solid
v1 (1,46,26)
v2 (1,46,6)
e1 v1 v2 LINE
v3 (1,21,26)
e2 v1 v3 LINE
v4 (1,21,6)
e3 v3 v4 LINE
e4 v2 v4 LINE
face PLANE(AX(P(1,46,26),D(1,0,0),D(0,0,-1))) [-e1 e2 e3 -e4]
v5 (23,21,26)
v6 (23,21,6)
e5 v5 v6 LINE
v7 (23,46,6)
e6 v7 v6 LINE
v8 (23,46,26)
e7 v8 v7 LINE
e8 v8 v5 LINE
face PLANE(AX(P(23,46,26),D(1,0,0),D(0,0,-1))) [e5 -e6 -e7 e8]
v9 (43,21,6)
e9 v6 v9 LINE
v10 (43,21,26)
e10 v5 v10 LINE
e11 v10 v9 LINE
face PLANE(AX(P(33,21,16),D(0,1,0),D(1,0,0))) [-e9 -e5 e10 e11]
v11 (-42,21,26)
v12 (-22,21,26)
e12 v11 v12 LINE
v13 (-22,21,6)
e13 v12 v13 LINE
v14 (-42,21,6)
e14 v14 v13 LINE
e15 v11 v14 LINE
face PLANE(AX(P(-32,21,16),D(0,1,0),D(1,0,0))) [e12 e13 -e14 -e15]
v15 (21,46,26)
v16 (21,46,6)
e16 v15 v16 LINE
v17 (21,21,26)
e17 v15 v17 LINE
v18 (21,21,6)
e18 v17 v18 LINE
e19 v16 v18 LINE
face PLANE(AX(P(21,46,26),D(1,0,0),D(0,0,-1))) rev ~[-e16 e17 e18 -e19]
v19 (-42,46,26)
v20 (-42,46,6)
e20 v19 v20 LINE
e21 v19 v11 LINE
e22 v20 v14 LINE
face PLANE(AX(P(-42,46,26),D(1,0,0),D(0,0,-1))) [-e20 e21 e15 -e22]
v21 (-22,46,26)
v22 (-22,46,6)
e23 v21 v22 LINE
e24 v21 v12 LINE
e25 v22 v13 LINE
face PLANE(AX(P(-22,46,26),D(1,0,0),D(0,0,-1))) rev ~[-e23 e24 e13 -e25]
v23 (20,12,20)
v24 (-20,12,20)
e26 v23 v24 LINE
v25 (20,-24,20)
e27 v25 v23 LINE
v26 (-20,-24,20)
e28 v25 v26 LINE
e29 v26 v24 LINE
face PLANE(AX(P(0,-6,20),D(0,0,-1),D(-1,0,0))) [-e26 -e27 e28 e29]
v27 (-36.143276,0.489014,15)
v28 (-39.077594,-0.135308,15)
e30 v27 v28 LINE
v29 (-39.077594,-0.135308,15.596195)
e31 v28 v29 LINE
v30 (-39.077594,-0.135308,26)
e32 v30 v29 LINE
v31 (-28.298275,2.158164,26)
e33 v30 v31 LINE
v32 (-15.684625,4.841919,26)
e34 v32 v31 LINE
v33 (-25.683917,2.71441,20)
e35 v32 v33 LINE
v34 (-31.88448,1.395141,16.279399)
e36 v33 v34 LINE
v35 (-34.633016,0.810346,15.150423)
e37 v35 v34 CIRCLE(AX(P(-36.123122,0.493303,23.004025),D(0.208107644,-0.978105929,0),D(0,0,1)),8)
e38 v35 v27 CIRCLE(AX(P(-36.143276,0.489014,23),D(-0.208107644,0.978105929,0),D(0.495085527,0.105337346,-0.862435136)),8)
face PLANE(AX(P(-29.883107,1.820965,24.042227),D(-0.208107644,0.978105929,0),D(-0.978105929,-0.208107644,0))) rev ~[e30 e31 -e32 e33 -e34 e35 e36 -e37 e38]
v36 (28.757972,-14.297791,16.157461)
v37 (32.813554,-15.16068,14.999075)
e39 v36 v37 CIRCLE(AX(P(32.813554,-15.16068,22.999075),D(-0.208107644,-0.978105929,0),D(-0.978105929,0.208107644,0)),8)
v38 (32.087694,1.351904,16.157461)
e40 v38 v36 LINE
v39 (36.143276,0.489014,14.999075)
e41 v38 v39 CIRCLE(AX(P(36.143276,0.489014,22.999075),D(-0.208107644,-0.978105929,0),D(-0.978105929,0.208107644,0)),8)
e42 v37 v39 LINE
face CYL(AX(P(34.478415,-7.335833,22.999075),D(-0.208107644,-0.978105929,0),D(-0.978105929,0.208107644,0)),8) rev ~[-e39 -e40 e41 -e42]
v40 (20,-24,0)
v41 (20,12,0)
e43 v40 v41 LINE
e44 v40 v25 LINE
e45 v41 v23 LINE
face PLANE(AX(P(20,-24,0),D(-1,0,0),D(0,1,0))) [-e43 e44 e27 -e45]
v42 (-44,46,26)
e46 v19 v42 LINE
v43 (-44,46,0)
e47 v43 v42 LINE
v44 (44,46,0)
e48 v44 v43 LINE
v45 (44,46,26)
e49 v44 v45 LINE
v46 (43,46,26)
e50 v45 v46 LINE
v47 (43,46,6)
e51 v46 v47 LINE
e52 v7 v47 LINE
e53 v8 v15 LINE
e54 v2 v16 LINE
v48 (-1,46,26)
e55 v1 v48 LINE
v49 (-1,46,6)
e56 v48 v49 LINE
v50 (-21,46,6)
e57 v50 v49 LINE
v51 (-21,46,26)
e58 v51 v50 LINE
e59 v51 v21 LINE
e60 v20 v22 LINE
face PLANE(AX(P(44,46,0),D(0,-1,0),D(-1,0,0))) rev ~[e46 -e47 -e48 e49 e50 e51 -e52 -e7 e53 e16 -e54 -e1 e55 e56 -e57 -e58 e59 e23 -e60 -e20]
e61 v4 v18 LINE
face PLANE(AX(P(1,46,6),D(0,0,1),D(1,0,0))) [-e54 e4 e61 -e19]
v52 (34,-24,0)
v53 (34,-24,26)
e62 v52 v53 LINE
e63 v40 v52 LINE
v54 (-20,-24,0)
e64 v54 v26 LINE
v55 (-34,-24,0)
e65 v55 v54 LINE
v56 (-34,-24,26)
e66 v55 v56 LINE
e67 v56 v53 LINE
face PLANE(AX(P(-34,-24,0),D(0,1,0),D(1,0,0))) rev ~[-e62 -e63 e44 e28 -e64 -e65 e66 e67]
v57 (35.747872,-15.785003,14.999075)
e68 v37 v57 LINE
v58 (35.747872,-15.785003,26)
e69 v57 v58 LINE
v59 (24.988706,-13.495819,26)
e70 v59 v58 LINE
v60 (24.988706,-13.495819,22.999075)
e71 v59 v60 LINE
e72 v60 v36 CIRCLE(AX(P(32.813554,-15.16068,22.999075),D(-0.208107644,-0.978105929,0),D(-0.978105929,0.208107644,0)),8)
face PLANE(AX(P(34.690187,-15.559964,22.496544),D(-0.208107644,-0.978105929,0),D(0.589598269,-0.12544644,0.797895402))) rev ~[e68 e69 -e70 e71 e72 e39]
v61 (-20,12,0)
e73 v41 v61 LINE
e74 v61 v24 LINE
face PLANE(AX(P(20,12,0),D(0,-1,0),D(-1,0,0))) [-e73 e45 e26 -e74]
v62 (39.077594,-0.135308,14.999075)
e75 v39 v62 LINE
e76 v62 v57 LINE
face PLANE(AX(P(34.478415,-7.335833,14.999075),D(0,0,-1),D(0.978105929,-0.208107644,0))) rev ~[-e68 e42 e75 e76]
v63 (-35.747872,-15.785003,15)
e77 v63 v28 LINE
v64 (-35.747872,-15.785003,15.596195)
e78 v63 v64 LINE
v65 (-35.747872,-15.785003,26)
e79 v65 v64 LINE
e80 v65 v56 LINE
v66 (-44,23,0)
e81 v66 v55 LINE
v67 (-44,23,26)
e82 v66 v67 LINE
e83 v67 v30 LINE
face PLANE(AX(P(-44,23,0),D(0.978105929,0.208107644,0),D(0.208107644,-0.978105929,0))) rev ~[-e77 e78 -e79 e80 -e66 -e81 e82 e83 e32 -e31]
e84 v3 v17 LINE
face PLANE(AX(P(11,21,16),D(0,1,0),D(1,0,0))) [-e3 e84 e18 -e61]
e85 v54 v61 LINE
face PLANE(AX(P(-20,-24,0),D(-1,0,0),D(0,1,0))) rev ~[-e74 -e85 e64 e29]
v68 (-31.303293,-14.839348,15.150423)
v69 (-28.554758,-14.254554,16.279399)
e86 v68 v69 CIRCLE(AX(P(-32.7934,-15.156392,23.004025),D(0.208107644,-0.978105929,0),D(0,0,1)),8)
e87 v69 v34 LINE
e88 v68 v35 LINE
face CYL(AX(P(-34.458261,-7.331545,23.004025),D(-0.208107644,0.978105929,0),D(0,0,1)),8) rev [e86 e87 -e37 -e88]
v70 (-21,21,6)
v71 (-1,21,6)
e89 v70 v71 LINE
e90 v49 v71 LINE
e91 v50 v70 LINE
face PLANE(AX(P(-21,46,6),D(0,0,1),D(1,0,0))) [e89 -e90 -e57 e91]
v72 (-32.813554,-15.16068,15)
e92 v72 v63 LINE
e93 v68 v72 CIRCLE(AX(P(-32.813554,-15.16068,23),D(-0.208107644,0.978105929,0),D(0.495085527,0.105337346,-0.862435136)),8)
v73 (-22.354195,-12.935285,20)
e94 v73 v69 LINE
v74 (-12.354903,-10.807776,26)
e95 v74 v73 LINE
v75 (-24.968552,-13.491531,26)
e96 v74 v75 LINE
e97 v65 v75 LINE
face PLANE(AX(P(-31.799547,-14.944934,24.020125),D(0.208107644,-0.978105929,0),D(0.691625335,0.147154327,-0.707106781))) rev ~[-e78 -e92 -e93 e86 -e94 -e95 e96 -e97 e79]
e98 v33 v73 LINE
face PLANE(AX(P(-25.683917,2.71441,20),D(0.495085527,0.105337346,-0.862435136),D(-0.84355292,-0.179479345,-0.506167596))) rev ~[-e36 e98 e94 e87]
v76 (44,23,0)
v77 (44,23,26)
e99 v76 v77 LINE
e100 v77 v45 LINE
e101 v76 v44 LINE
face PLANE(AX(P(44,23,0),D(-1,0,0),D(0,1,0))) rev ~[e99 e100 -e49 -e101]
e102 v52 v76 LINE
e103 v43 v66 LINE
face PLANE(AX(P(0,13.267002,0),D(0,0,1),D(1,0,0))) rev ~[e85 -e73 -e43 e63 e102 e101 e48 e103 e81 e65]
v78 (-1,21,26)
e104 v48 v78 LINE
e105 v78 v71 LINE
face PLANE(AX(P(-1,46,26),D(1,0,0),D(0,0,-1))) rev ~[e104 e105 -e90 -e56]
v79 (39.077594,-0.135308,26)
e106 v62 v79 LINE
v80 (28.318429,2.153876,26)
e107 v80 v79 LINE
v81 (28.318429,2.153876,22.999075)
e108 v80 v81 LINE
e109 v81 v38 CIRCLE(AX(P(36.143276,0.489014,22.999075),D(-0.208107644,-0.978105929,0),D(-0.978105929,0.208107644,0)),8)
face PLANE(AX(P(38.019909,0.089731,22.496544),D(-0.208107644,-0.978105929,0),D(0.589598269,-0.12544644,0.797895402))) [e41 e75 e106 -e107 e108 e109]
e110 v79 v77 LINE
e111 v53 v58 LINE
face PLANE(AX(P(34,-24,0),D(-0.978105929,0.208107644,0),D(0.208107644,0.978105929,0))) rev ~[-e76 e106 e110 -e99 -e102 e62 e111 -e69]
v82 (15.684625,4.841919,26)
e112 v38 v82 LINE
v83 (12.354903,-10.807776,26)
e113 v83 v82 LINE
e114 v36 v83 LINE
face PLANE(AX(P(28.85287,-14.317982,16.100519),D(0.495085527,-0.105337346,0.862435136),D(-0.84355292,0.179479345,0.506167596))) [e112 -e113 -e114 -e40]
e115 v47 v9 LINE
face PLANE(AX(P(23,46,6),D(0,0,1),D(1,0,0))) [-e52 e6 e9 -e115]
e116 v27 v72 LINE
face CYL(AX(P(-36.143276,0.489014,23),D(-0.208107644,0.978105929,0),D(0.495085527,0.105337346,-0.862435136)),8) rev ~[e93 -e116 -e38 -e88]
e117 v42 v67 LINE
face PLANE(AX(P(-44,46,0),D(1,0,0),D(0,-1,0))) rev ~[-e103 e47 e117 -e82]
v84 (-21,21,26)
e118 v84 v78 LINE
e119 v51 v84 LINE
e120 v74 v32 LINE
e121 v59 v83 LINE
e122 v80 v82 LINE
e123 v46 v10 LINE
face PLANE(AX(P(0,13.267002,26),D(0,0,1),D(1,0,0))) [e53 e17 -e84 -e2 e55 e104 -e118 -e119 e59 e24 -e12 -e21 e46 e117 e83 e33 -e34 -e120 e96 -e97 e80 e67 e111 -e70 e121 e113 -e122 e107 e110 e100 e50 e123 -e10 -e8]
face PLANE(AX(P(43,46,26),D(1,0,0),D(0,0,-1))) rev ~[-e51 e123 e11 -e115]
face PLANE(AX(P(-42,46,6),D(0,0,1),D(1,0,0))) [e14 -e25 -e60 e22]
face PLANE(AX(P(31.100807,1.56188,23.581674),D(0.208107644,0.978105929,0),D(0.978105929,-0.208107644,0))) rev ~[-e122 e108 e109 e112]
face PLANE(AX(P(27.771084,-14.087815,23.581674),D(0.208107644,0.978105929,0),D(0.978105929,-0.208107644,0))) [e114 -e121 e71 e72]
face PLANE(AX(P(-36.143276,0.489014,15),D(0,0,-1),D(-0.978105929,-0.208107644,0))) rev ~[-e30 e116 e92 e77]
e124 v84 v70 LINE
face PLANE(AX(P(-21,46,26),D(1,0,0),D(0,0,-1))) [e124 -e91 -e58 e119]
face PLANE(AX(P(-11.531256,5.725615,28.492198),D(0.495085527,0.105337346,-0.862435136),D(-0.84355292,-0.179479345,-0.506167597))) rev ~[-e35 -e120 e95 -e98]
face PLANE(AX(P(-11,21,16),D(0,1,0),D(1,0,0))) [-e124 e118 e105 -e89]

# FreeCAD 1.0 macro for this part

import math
import FreeCAD as App
import Part
import Sketcher


def add_polygon(sketch, points):
    """Adds a closed chain of lines whose ends are joined by coincident constraints."""
    first, n = sketch.GeometryCount, len(points)
    for a, b in zip(points, points[1:] + points[:1]):
        sketch.addGeometry(Part.LineSegment(App.Vector(*a, 0), App.Vector(*b, 0)), False)
    for i in range(n):
        sketch.addConstraint(Sketcher.Constraint("Coincident", first + i, 2, first + (i + 1) % n, 1))

doc = App.newDocument("Part")
body = doc.addObject("PartDesign::Body", "Body")

# Sketch on XY plane
sketch1 = body.newObject("Sketcher::SketchObject", "Sketch")
sketch1.AttachmentSupport = (doc.getObject("XY_Plane"), [""])
sketch1.MapMode = "FlatFace"
add_polygon(sketch1, [(-34, -24), (34, -24), (44, 23), (44, 46), (-44, 46), (-44, 23)])  # lines 0-5
sketch1.addConstraint([
    Sketcher.Constraint("Horizontal", 0),
    Sketcher.Constraint("Vertical", 2),
    Sketcher.Constraint("Horizontal", 3),
    Sketcher.Constraint("Vertical", 4),
    Sketcher.Constraint("Symmetric", 1, 2, 4, 2, -2),
    Sketcher.Constraint("Equal", 1, 5),
    Sketcher.Constraint("DistanceX", 0, 1, 0, 2, 68.0),
    Sketcher.Constraint("DistanceX", 3, 2, 3, 1, 88.0),
    Sketcher.Constraint("DistanceY", 2, 1, 2, 2, 23.0),
    Sketcher.Constraint("DistanceY", 0, 2, -1, 1, 24.0),
    Sketcher.Constraint("DistanceY", -1, 1, 1, 2, 23.0),
])
pad1 = body.newObject("PartDesign::Pad", "Pad")
pad1.Profile = sketch1
pad1.Length = 26

# Sketch on XY plane
sketch2 = body.newObject("Sketcher::SketchObject", "Sketch001")
sketch2.AttachmentSupport = (doc.getObject("XY_Plane"), [""])
sketch2.MapMode = "FlatFace"
add_polygon(sketch2, [(20, 12), (20, -24), (-20, -24), (-20, 12)])  # lines 0-3
sketch2.addConstraint([
    Sketcher.Constraint("Vertical", 0),
    Sketcher.Constraint("Horizontal", 1),
    Sketcher.Constraint("Vertical", 2),
    Sketcher.Constraint("Horizontal", 3),
    Sketcher.Constraint("DistanceX", 1, 2, 1, 1, 40.0),
    Sketcher.Constraint("DistanceY", 0, 2, 0, 1, 36.0),
    Sketcher.Constraint("DistanceX", -1, 1, 0, 2, 20.0),
    Sketcher.Constraint("DistanceY", 0, 2, -1, 1, 24.0),
])
pocket1 = body.newObject("PartDesign::Pocket", "Pocket")
pocket1.Profile = sketch2
pocket1.Length = 20
pocket1.Reversed = True

# Sketch on XZ plane
sketch3 = body.newObject("Sketcher::SketchObject", "Sketch002")
sketch3.AttachmentSupport = (doc.getObject("XZ_Plane"), [""])
sketch3.MapMode = "FlatFace"
sketch3.AttachmentOffset = App.Placement(App.Vector(0, 0, -46), App.Rotation())
add_polygon(sketch3, [(23, 6), (23, 26), (43, 26), (43, 6)])  # lines 0-3
add_polygon(sketch3, [(1, 6), (1, 26), (21, 26), (21, 6)])  # lines 4-7
add_polygon(sketch3, [(-21, 6), (-21, 26), (-1, 26), (-1, 6)])  # lines 8-11
add_polygon(sketch3, [(-42, 6), (-42, 26), (-22, 26), (-22, 6)])  # lines 12-15
sketch3.addConstraint([
    Sketcher.Constraint("Vertical", 0),
    Sketcher.Constraint("Horizontal", 1),
    Sketcher.Constraint("Vertical", 2),
    Sketcher.Constraint("Horizontal", 3),
    Sketcher.Constraint("Vertical", 4),
    Sketcher.Constraint("Horizontal", 5),
    Sketcher.Constraint("Vertical", 6),
    Sketcher.Constraint("Horizontal", 7),
    Sketcher.Constraint("Vertical", 8),
    Sketcher.Constraint("Horizontal", 9),
    Sketcher.Constraint("Vertical", 10),
    Sketcher.Constraint("Horizontal", 11),
    Sketcher.Constraint("Vertical", 12),
    Sketcher.Constraint("Horizontal", 13),
    Sketcher.Constraint("Vertical", 14),
    Sketcher.Constraint("Horizontal", 15),
    Sketcher.Constraint("Symmetric", 5, 2, 8, 2, -2),
    Sketcher.Constraint("Symmetric", 7, 2, 10, 2, -2),
    Sketcher.Constraint("Horizontal", 1, 2, 4, 2),
    Sketcher.Constraint("Horizontal", 3, 2, 6, 2),
    Sketcher.Constraint("Horizontal", 9, 2, 12, 2),
    Sketcher.Constraint("Horizontal", 11, 2, 14, 2),
    Sketcher.Constraint("Equal", 3, 5),
    Sketcher.Constraint("Equal", 11, 13),
    Sketcher.Constraint("Equal", 15, 0),
    Sketcher.Constraint("DistanceX", 1, 1, 1, 2, 20.0),
    Sketcher.Constraint("DistanceX", -1, 1, 0, 2, 23.0),
    Sketcher.Constraint("DistanceY", -1, 1, 0, 2, 26.0),
    Sketcher.Constraint("DistanceX", -1, 1, 4, 2, 1.0),
    Sketcher.Constraint("DistanceX", 12, 2, -1, 1, 42.0),
])
pocket2 = body.newObject("PartDesign::Pocket", "Pocket001")
pocket2.Profile = sketch3
pocket2.Length = 25
pocket2.Reversed = True

# Sketch on an angled plane
sketch4 = body.newObject("Sketcher::SketchObject", "Sketch003")
sketch4.Placement = App.Placement(App.Vector(-26.633414, -5.666684, 23.004025), App.Rotation(App.Vector(-0.691625335, -0.147154327, 0.707106781), App.Vector(0.691625335, 0.147154326, 0.707106781), App.Vector(-0.208107644, 0.978105929, 0), "ZXY"))
sketch4.addGeometry([
    Part.LineSegment(App.Vector(5.656854, 5.656854, 0), App.Vector(0, 0, 0)),
    Part.ArcOfCircle(Part.Circle(App.Vector(5.656854, -5.656854, 0), App.Vector(0, 0, 1), 8), math.radians(135), math.radians(405)),
    Part.LineSegment(App.Vector(11.313708, 0, 0), App.Vector(5.656854, 5.656854, 0)),
], False)
sketch4.addConstraint([
    Sketcher.Constraint("Tangent", 0, 2, 1, 1),
    Sketcher.Constraint("Tangent", 1, 2, 2, 1),
    Sketcher.Constraint("Coincident", 2, 2, 0, 1),
    Sketcher.Constraint("Coincident", 0, 2, -1, 1),
    Sketcher.Constraint("PointOnObject", 1, 2, -1),
    Sketcher.Constraint("Perpendicular", 0, 2),
    Sketcher.Constraint("Radius", 1, 8.0),
])
pocket3 = body.newObject("PartDesign::Pocket", "Pocket002")
pocket3.Profile = sketch4
pocket3.Length = 16
pocket3.Midplane = True

# Sketch on an angled plane
sketch5 = body.newObject("Sketcher::SketchObject", "Sketch004")
sketch5.Placement = App.Placement(App.Vector(34.478415, -7.335833, 14.999075), App.Rotation(App.Vector(0.589598269, -0.12544644, 0.797895402), App.Vector(-0.780426223, 0.166048132, 0.602795926), App.Vector(-0.208107644, -0.978105929, 0), "ZXY"))
sketch5.addGeometry([
    Part.LineSegment(App.Vector(0, 0, 0), App.Vector(6.376045, -8.4397, 0)),  # 0
    Part.LineSegment(App.Vector(6.376045, -8.4397, 0), App.Vector(17.547319, 0, 0)),  # 1
    Part.LineSegment(App.Vector(17.547319, 0, 0), App.Vector(11.171274, 8.4397, 0)),  # 2
    Part.LineSegment(App.Vector(11.171274, 8.4397, 0), App.Vector(6.348906, 14.822864, 0)),  # 3
    Part.LineSegment(App.Vector(6.348906, 14.822864, 0), App.Vector(1.560796, 11.205531, 0)),  # 4
    Part.ArcOfCircle(Part.Circle(App.Vector(6.383163, 4.822367, 0), App.Vector(0, 0, 1), 8), math.radians(127.070405), math.radians(217.070405)),  # 5
], False)
sketch5.addConstraint([
    Sketcher.Constraint("Coincident", 0, 2, 1, 1),
    Sketcher.Constraint("Coincident", 1, 2, 2, 1),
    Sketcher.Constraint("Coincident", 2, 2, 3, 1),
    Sketcher.Constraint("Coincident", 3, 2, 4, 1),
    Sketcher.Constraint("Tangent", 4, 2, 5, 1),
    Sketcher.Constraint("Tangent", 5, 2, 0, 1),
    Sketcher.Constraint("Coincident", 5, 2, -1, 1),
    Sketcher.Constraint("PointOnObject", 1, 2, -1),
    Sketcher.Constraint("Perpendicular", 0, 1),
    Sketcher.Constraint("Perpendicular", 1, 2),
    Sketcher.Constraint("Parallel", 2, 3),
    Sketcher.Constraint("Perpendicular", 3, 4),
    Sketcher.Constraint("Equal", 0, 2),
    Sketcher.Constraint("Radius", 5, 8.0),
    Sketcher.Constraint("DistanceY", 0, 2, -1, 1, 8.4397),
    Sketcher.Constraint("DistanceX", -1, 1, 1, 2, 17.547319),
])
pocket4 = body.newObject("PartDesign::Pocket", "Pocket003")
pocket4.Profile = sketch5
pocket4.Length = 16
pocket4.Midplane = True

# Sketch on an angled plane
sketch6 = body.newObject("Sketcher::SketchObject", "Sketch005")
sketch6.Placement = App.Placement(App.Vector(-1.664861, 7.824847, 0), App.Rotation(App.Vector(0.978105929, 0.208107644, 0), App.Vector(0, 0, 1), App.Vector(0.208107644, -0.978105929, 0), "ZXY"))
sketch6.addGeometry([
    Part.LineSegment(App.Vector(-31.200844, 16.100519, 0), App.Vector(-24.556702, 20, 0)),  # 0
    Part.LineSegment(App.Vector(-24.556702, 20, 0), App.Vector(-10.087245, 28.492198, 0)),  # 1
    Part.LineSegment(App.Vector(-10.087245, 28.492198, 0), App.Vector(-33.671268, 30.842641, 0)),  # 2
    Part.ArcOfCircle(Part.Circle(App.Vector(-35.250185, 23, 0), App.Vector(0, 0, 1), 8), math.radians(78.617106), math.radians(180)),  # 3
    Part.LineSegment(App.Vector(-43.250185, 23, 0), App.Vector(-43.250185, 15, 0)),  # 4
    Part.LineSegment(App.Vector(-43.250185, 15, 0), App.Vector(-35.250185, 15, 0)),  # 5
    Part.ArcOfCircle(Part.Circle(App.Vector(-35.250185, 23, 0), App.Vector(0, 0, 1), 8), math.radians(-90), math.radians(-59.591109)),  # 6
], False)
sketch6.addConstraint([
    Sketcher.Constraint("Coincident", 0, 2, 1, 1),
    Sketcher.Constraint("Coincident", 1, 2, 2, 1),
    Sketcher.Constraint("Coincident", 2, 2, 3, 1),
    Sketcher.Constraint("Tangent", 3, 2, 4, 1),
    Sketcher.Constraint("Coincident", 4, 2, 5, 1),
    Sketcher.Constraint("Tangent", 5, 2, 6, 1),
    Sketcher.Constraint("Tangent", 6, 2, 0, 1),
    Sketcher.Constraint("Vertical", 4),
    Sketcher.Constraint("Horizontal", 5),
    Sketcher.Constraint("Coincident", 6, 3, 3, 3),
    Sketcher.Constraint("Equal", 3, 6),
    Sketcher.Constraint("Parallel", 0, 1),
    Sketcher.Constraint("Radius", 3, 8.0),
    Sketcher.Constraint("DistanceY", -1, 1, 3, 3, 23.0),
    Sketcher.Constraint("DistanceY", -1, 1, 0, 2, 20.0),
    Sketcher.Constraint("DistanceY", -1, 1, 1, 2, 28.492198),
    Sketcher.Constraint("Distance", 2, 23.700859),
    Sketcher.Constraint("DistanceY", -1, 1, 2, 2, 30.842641),
    Sketcher.Constraint("DistanceX", 3, 3, -1, 1, 35.250185),
])
pocket5 = body.newObject("PartDesign::Pocket", "Pocket004")
pocket5.Profile = sketch6
pocket5.Length = 16
pocket5.Reversed = True

# Sketch on an angled plane
sketch7 = body.newObject("Sketcher::SketchObject", "Sketch006")
sketch7.Placement = App.Placement(App.Vector(-1.664861, -7.824847, 0), App.Rotation(App.Vector(0.978105929, -0.208107644, 0), App.Vector(0, 0, -1), App.Vector(0.208107644, 0.978105929, 0), "ZXY"))
sketch7.addGeometry([
    Part.LineSegment(App.Vector(31.200844, -16.100519, 0), App.Vector(14.333585, -26, 0)),  # 0
    Part.LineSegment(App.Vector(14.333585, -26, 0), App.Vector(32.666557, -30.571319, 0)),  # 1
    Part.ArcOfCircle(Part.Circle(App.Vector(35.250185, -23, 0), App.Vector(0, 0, 1), 8), math.radians(-108.841636), math.radians(49.358197)),  # 2
    Part.LineSegment(App.Vector(40.460809, -16.92963, 0), App.Vector(38.250185, -14.999075, 0)),  # 3
    Part.LineSegment(App.Vector(38.250185, -14.999075, 0), App.Vector(35.250185, -15, 0)),  # 4
    Part.ArcOfCircle(Part.Circle(App.Vector(35.250185, -23, 0), App.Vector(0, 0, 1), 8), math.radians(90), math.radians(120.408891)),  # 5
], False)
sketch7.addConstraint([
    Sketcher.Constraint("Coincident", 0, 2, 1, 1),
    Sketcher.Constraint("Coincident", 1, 2, 2, 1),
    Sketcher.Constraint("Coincident", 2, 2, 3, 1),
    Sketcher.Constraint("Coincident", 3, 2, 4, 1),
    Sketcher.Constraint("Coincident", 4, 2, 5, 1),
    Sketcher.Constraint("Tangent", 5, 2, 0, 1),
    Sketcher.Constraint("Coincident", 5, 3, 2, 3),
    Sketcher.Constraint("Equal", 2, 5),
    Sketcher.Constraint("Vertical", 5, 3, 4, 2),
    Sketcher.Constraint("Radius", 2, 8.0),
    Sketcher.Constraint("Distance", 4, 3.0),
    Sketcher.Constraint("DistanceY", 2, 3, -1, 1, 23.0),
    Sketcher.Constraint("DistanceY", 0, 2, -1, 1, 26.0),
    Sketcher.Constraint("DistanceX", 0, 2, 2, 3, 20.916601),
    Sketcher.Constraint("DistanceY", 1, 2, -1, 1, 30.571319),
    Sketcher.Constraint("DistanceX", -1, 1, 2, 2, 40.460809),
    Sketcher.Constraint("DistanceY", 2, 2, -1, 1, 16.92963),
    Sketcher.Constraint("Distance", 3, 2.934944),
])
pocket6 = body.newObject("PartDesign::Pocket", "Pocket005")
pocket6.Profile = sketch7
pocket6.Length = 16
pocket6.Reversed = True

doc.recompute()
